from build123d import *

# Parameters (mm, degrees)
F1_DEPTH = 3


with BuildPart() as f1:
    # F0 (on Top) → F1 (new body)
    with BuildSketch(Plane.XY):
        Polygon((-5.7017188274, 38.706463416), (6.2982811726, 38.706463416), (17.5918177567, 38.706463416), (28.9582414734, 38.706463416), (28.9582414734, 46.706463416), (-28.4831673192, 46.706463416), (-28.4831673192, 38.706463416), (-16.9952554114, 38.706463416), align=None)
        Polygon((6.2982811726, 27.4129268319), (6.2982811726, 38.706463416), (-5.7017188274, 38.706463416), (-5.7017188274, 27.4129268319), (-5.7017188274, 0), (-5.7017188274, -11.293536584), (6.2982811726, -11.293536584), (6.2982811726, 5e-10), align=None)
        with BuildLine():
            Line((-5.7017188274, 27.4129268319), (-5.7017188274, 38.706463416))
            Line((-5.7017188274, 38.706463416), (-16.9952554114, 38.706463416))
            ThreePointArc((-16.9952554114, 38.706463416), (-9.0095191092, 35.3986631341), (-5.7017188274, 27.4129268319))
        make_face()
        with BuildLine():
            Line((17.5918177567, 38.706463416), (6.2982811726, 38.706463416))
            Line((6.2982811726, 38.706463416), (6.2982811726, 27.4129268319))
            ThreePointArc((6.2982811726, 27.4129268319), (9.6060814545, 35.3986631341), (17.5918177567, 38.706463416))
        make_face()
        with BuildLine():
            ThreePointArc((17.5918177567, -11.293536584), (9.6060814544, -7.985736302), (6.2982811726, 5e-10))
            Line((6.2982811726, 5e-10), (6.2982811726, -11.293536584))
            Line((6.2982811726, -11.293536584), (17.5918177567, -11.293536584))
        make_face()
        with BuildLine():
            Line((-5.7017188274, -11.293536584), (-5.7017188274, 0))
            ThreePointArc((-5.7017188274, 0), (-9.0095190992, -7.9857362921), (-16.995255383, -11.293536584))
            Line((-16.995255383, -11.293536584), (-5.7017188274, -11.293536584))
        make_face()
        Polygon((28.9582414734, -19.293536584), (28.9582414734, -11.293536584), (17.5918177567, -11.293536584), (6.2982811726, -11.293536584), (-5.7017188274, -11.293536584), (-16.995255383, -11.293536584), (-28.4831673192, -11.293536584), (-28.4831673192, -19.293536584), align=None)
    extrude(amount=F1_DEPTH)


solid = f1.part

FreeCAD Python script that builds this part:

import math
import FreeCAD as App
import Part
import Sketcher

V = App.Vector

doc = App.newDocument("Part")
body = doc.addObject("PartDesign::Body", "Body")

sketch1 = body.newObject("Sketcher::SketchObject", "Sketch")
sketch1.AttachmentSupport = (doc.getObject("XY_Plane"), [""])
sketch1.MapMode = "FlatFace"
sketch1.addGeometry(Part.LineSegment(V(28.958241, 38.706463, 0), V(28.958241, 46.706463, 0)), False)
sketch1.addGeometry(Part.LineSegment(V(28.958241, 46.706463, 0), V(-28.483167, 46.706463, 0)), False)
sketch1.addGeometry(Part.LineSegment(V(-28.483167, 46.706463, 0), V(-28.483167, 38.706463, 0)), False)
sketch1.addGeometry(Part.LineSegment(V(-28.483167, 38.706463, 0), V(-16.995255, 38.706463, 0)), False)
sketch1.addGeometry(Part.ArcOfCircle(Part.Circle(V(-16.995255, 27.412927, 0), V(0, 0, 1), 11.293537), math.radians(0), math.radians(90)), False)
sketch1.addGeometry(Part.LineSegment(V(-5.701719, 27.412927, 0), V(-5.701719, 0, 0)), False)
sketch1.addGeometry(Part.ArcOfCircle(Part.Circle(V(-16.995255, 0, 0), V(0, 0, 1), 11.293537), math.radians(-90), math.radians(0)), False)
sketch1.addGeometry(Part.LineSegment(V(-16.995255, -11.293537, 0), V(-28.483167, -11.293537, 0)), False)
sketch1.addGeometry(Part.LineSegment(V(-28.483167, -11.293537, 0), V(-28.483167, -19.293537, 0)), False)
sketch1.addGeometry(Part.LineSegment(V(-28.483167, -19.293537, 0), V(28.958241, -19.293537, 0)), False)
sketch1.addGeometry(Part.LineSegment(V(28.958241, -19.293537, 0), V(28.958241, -11.293537, 0)), False)
sketch1.addGeometry(Part.LineSegment(V(28.958241, -11.293537, 0), V(17.591818, -11.293537, 0)), False)
sketch1.addGeometry(Part.ArcOfCircle(Part.Circle(V(17.591818, 0, 0), V(0, 0, 1), 11.293537), math.radians(180), math.radians(270)), False)
sketch1.addGeometry(Part.LineSegment(V(6.298281, 0, 0), V(6.298281, 27.412927, 0)), False)
sketch1.addGeometry(Part.ArcOfCircle(Part.Circle(V(17.591818, 27.412927, 0), V(0, 0, 1), 11.293537), math.radians(90), math.radians(180)), False)
sketch1.addGeometry(Part.LineSegment(V(17.591818, 38.706463, 0), V(28.958241, 38.706463, 0)), False)
sketch1.addConstraint(Sketcher.Constraint("Coincident", 0, 2, 1, 1))
sketch1.addConstraint(Sketcher.Constraint("Coincident", 1, 2, 2, 1))
sketch1.addConstraint(Sketcher.Constraint("Coincident", 2, 2, 3, 1))
sketch1.addConstraint(Sketcher.Constraint("Tangent", 3, 2, 4, 2))
sketch1.addConstraint(Sketcher.Constraint("Tangent", 4, 1, 5, 1))
sketch1.addConstraint(Sketcher.Constraint("Tangent", 5, 2, 6, 2))
sketch1.addConstraint(Sketcher.Constraint("Tangent", 6, 1, 7, 1))
sketch1.addConstraint(Sketcher.Constraint("Coincident", 7, 2, 8, 1))
sketch1.addConstraint(Sketcher.Constraint("Coincident", 8, 2, 9, 1))
sketch1.addConstraint(Sketcher.Constraint("Coincident", 9, 2, 10, 1))
sketch1.addConstraint(Sketcher.Constraint("Coincident", 10, 2, 11, 1))
sketch1.addConstraint(Sketcher.Constraint("Tangent", 11, 2, 12, 2))
sketch1.addConstraint(Sketcher.Constraint("Tangent", 12, 1, 13, 1))
sketch1.addConstraint(Sketcher.Constraint("Tangent", 13, 2, 14, 2))
sketch1.addConstraint(Sketcher.Constraint("Tangent", 14, 1, 15, 1))
sketch1.addConstraint(Sketcher.Constraint("Coincident", 15, 2, 0, 1))
sketch1.addConstraint(Sketcher.Constraint("Vertical", 0))
sketch1.addConstraint(Sketcher.Constraint("Horizontal", 1))
sketch1.addConstraint(Sketcher.Constraint("Vertical", 2))
sketch1.addConstraint(Sketcher.Constraint("Horizontal", 3))
sketch1.addConstraint(Sketcher.Constraint("Vertical", 5))
sketch1.addConstraint(Sketcher.Constraint("Horizontal", 7))
sketch1.addConstraint(Sketcher.Constraint("Vertical", 8))
sketch1.addConstraint(Sketcher.Constraint("Horizontal", 9))
sketch1.addConstraint(Sketcher.Constraint("Vertical", 10))
sketch1.addConstraint(Sketcher.Constraint("Horizontal", 11))
sketch1.addConstraint(Sketcher.Constraint("Vertical", 13))
sketch1.addConstraint(Sketcher.Constraint("Horizontal", 15))
sketch1.addConstraint(Sketcher.Constraint("Equal", 4, 6))
sketch1.addConstraint(Sketcher.Constraint("Equal", 6, 12))
sketch1.addConstraint(Sketcher.Constraint("Equal", 12, 14))
sketch1.addConstraint(Sketcher.Constraint("PointOnObject", 6, 3, -1))
sketch1.addConstraint(Sketcher.Constraint("PointOnObject", 12, 3, -1))
sketch1.addConstraint(Sketcher.Constraint("Horizontal", 4, 3, 14, 3))
sketch1.addConstraint(Sketcher.Constraint("Vertical", 2, 2, 7, 2))
sketch1.addConstraint(Sketcher.Constraint("Vertical", 0, 2, 9, 2))
sketch1.addConstraint(Sketcher.Constraint("Equal", 2, 8))
sketch1.addConstraint(Sketcher.Constraint("DistanceY", 0, 1, 0, 2, 8.0))
sketch1.addConstraint(Sketcher.Constraint("DistanceX", 5, 2, 12, 1, 12.0))
sketch1.addConstraint(Sketcher.Constraint("Radius", 4, 11.293537))
sketch1.addConstraint(Sketcher.Constraint("DistanceX", 1, 2, 1, 1, 57.441409))
sketch1.addConstraint(Sketcher.Constraint("DistanceX", 3, 1, 3, 2, 11.487912))
sketch1.addConstraint(Sketcher.Constraint("DistanceY", 5, 2, 5, 1, 27.412927))
sketch1.addConstraint(Sketcher.Constraint("DistanceX", -1, 1, 0, 2, 28.958241))
pad1 = body.newObject("PartDesign::Pad", "Pad")
pad1.Profile = sketch1
pad1.Length = 3

doc.recompute()
